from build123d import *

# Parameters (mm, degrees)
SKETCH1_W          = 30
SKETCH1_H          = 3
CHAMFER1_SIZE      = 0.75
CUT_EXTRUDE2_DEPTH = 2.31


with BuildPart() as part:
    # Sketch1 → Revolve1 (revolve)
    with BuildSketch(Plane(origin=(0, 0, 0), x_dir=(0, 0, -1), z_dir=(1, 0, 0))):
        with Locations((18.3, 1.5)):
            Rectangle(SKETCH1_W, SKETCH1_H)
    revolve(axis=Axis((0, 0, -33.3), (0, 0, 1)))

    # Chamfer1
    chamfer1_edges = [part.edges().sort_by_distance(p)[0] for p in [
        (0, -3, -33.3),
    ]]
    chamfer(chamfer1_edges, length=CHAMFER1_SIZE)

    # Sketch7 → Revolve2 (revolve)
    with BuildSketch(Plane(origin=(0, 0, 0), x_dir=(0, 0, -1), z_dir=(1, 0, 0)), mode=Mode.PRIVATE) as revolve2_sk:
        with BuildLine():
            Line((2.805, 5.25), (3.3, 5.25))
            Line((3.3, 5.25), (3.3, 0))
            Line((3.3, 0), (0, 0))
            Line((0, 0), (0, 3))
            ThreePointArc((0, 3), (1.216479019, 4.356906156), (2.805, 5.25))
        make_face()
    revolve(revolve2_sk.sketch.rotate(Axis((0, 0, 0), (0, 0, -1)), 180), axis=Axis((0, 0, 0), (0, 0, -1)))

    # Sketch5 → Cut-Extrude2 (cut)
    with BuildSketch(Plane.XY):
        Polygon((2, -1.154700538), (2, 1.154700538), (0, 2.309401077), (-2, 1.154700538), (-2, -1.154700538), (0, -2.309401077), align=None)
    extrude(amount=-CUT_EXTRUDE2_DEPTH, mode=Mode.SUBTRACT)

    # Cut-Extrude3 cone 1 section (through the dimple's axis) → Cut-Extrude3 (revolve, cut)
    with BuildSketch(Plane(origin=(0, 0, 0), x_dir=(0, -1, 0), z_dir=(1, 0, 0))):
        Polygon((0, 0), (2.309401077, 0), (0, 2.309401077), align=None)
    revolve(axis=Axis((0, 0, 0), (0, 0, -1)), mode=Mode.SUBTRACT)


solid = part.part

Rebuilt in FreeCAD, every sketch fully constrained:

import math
import FreeCAD as App
import Part
import Sketcher
Q = App.Units.Quantity


def edges_at(feature, points):
    """Names of the edges that pass closest to the given points."""
    edges = feature.Shape.Edges
    near = lambda p: min(range(len(edges)), key=lambda i: edges[i].distToShape(Part.Vertex(*p))[0])
    return sorted({f"Edge{near(p) + 1}" for p in points})

doc = App.newDocument("Part")
params = doc.addObject("Spreadsheet::Sheet", "Params")
for row, (alias, value) in enumerate([
    ("sketch1_width", "3 mm"),
    ("sketch1_height", "30 mm"),
    ("revolution_angle", "360 deg"),
    ("chamfer_size", "0.75 mm"),
    ("sketch2_width", "3 mm"),
    ("sketch2_height", "3.3 mm"),
    ("sketch2_width2", "5.25 mm"),
    ("revolution2_angle", "360 deg"),
    ("pocket1_length", "2.31 mm"),
    ("groove_angle", "360 deg"),
], start=1):
    params.set(f"A{row}", alias)
    params.set(f"B{row}", "=" + value)
    params.setAlias(f"B{row}", alias)

body = doc.addObject("PartDesign::Body", "Body")

# Sketch on YZ plane
sketch1 = body.newObject("Sketcher::SketchObject", "Sketch")
sketch1.AttachmentSupport = (doc.getObject("YZ_Plane"), [""])
sketch1.MapMode = "FlatFace"
sketch1.addGeometry([
    Part.LineSegment(App.Vector(3, -3.3, 0), App.Vector(0, -3.3, 0)),
    Part.LineSegment(App.Vector(0, -3.3, 0), App.Vector(0, -33.3, 0)),
    Part.LineSegment(App.Vector(0, -33.3, 0), App.Vector(3, -33.3, 0)),
    Part.LineSegment(App.Vector(3, -33.3, 0), App.Vector(3, -3.3, 0)),
], False)
sketch1.addConstraint([
    Sketcher.Constraint("Coincident", 0, 2, 1, 1),
    Sketcher.Constraint("Coincident", 1, 2, 2, 1),
    Sketcher.Constraint("Coincident", 2, 2, 3, 1),
    Sketcher.Constraint("Coincident", 3, 2, 0, 1),
    Sketcher.Constraint("Horizontal", 0),
    Sketcher.Constraint("Vertical", 1),
    Sketcher.Constraint("Horizontal", 2),
    Sketcher.Constraint("Vertical", 3),
    Sketcher.Constraint("PointOnObject", 0, 2, -2),
    Sketcher.Constraint("DistanceX", 0, 2, 0, 1, 3.0),
    Sketcher.Constraint("DistanceY", 1, 2, 1, 1, 30.0),
    Sketcher.Constraint("DistanceY", 0, 2, -1, 1, 3.3),
])
sketch1.setExpression("Constraints[9]", "Params.sketch1_width")
sketch1.setExpression("Constraints[10]", "Params.sketch1_height")
revolution = body.newObject("PartDesign::Revolution", "Revolution")
revolution.Profile = sketch1
revolution.ReferenceAxis = (sketch1, ["V_Axis"])
revolution.setExpression("Angle", "Params.revolution_angle")
doc.recompute()

chamfer = body.newObject("PartDesign::Chamfer", "Chamfer")
chamfer.Base = (revolution, edges_at(revolution, [(0, -3, -33.3)]))
chamfer.setExpression("Size", "Params.chamfer_size")

# Sketch on YZ plane
sketch2 = body.newObject("Sketcher::SketchObject", "Sketch001")
sketch2.AttachmentSupport = (doc.getObject("YZ_Plane"), [""])
sketch2.MapMode = "FlatFace"
sketch2.addGeometry([
    Part.LineSegment(App.Vector(5.25, -3.3, 0), App.Vector(5.25, -2.81, 0)),  # 0
    Part.ArcOfCircle(Part.Circle(App.Vector(0, -4.71, 0), App.Vector(0, 0, 1), 5.59), math.radians(20), math.radians(58)),  # 1
    Part.LineSegment(App.Vector(3, 0, 0), App.Vector(0, 0, 0)),  # 2
    Part.LineSegment(App.Vector(0, 0, 0), App.Vector(0, -3.3, 0)),  # 3
    Part.LineSegment(App.Vector(0, -3.3, 0), App.Vector(5.25, -3.3, 0)),  # 4
], False)
sketch2.addConstraint([
    Sketcher.Constraint("Coincident", 0, 2, 1, 1),
    Sketcher.Constraint("Coincident", 1, 2, 2, 1),
    Sketcher.Constraint("Coincident", 2, 2, 3, 1),
    Sketcher.Constraint("Coincident", 3, 2, 4, 1),
    Sketcher.Constraint("Coincident", 4, 2, 0, 1),
    Sketcher.Constraint("Vertical", 0),
    Sketcher.Constraint("Horizontal", 2),
    Sketcher.Constraint("Vertical", 3),
    Sketcher.Constraint("Horizontal", 4),
    Sketcher.Constraint("Coincident", 2, 2, -1, 1),
    Sketcher.Constraint("PointOnObject", 1, 3, -2),
    Sketcher.Constraint("DistanceX", 2, 2, 2, 1, 3.0),
    Sketcher.Constraint("DistanceY", 3, 2, 3, 1, 3.3),
    Sketcher.Constraint("DistanceX", 4, 1, 4, 2, 5.25),
    Sketcher.Constraint("DistanceY", 0, 1, 0, 2, 0.495),
])
sketch2.setExpression("Constraints[11]", "Params.sketch2_width")
sketch2.setExpression("Constraints[12]", "Params.sketch2_height")
sketch2.setExpression("Constraints[13]", "Params.sketch2_width2")
revolution2 = body.newObject("PartDesign::Revolution", "Revolution001")
revolution2.Profile = sketch2
revolution2.ReferenceAxis = (sketch2, ["V_Axis"])
revolution2.setExpression("Angle", "Params.revolution2_angle")

# Sketch on XY plane
sketch3 = body.newObject("Sketcher::SketchObject", "Sketch002")
sketch3.AttachmentSupport = (doc.getObject("XY_Plane"), [""])
sketch3.MapMode = "FlatFace"
sketch3.addGeometry([
    Part.LineSegment(App.Vector(2, -1.2, 0), App.Vector(2, 1.2, 0)),  # 0
    Part.LineSegment(App.Vector(2, 1.2, 0), App.Vector(0, 2.3, 0)),  # 1
    Part.LineSegment(App.Vector(0, 2.3, 0), App.Vector(-2, 1.2, 0)),  # 2
    Part.LineSegment(App.Vector(-2, 1.2, 0), App.Vector(-2, -1.2, 0)),  # 3
    Part.LineSegment(App.Vector(-2, -1.2, 0), App.Vector(0, -2.3, 0)),  # 4
    Part.LineSegment(App.Vector(0, -2.3, 0), App.Vector(2, -1.2, 0)),  # 5
], False)
sketch3.addConstraint([
    Sketcher.Constraint("Coincident", 0, 2, 1, 1),
    Sketcher.Constraint("Coincident", 1, 2, 2, 1),
    Sketcher.Constraint("Coincident", 2, 2, 3, 1),
    Sketcher.Constraint("Coincident", 3, 2, 4, 1),
    Sketcher.Constraint("Coincident", 4, 2, 5, 1),
    Sketcher.Constraint("Coincident", 5, 2, 0, 1),
    Sketcher.Constraint("Vertical", 0),
    Sketcher.Constraint("Vertical", 3),
    Sketcher.Constraint("Symmetric", 0, 2, 3, 2, -1, 1),
    Sketcher.Constraint("Symmetric", 1, 2, 4, 2, -1, 1),
    Sketcher.Constraint("PointOnObject", 1, 2, -2),
    Sketcher.Constraint("Parallel", 2, 5),
    Sketcher.Constraint("Horizontal", 0, 2, 2, 2),
    Sketcher.Constraint("Angle", 1, Q("150 deg")),
    Sketcher.Constraint("DistanceX", -1, 1, 0, 2, 2.0),
    Sketcher.Constraint("DistanceY", 0, 1, 0, 2, 2.309401),
])
pocket1 = body.newObject("PartDesign::Pocket", "Pocket")
pocket1.Profile = sketch3
pocket1.setExpression("Length", "Params.pocket1_length")

# Sketch on YZ plane
sketch4 = body.newObject("Sketcher::SketchObject", "Sketch003")
sketch4.AttachmentSupport = (doc.getObject("YZ_Plane"), [""])
sketch4.MapMode = "FlatFace"
sketch4.addGeometry([
    Part.LineSegment(App.Vector(0, 0, 0), App.Vector(-2.3, 0, 0)),
    Part.LineSegment(App.Vector(-2.3, 0, 0), App.Vector(0, -2.3, 0)),
    Part.LineSegment(App.Vector(0, -2.3, 0), App.Vector(0, 0, 0)),
], False)
sketch4.addConstraint([
    Sketcher.Constraint("Coincident", 0, 2, 1, 1),
    Sketcher.Constraint("Coincident", 1, 2, 2, 1),
    Sketcher.Constraint("Coincident", 2, 2, 0, 1),
    Sketcher.Constraint("Horizontal", 0),
    Sketcher.Constraint("Vertical", 2),
    Sketcher.Constraint("Coincident", 2, 2, -1, 1),
    Sketcher.Constraint("Equal", 0, 2),
    Sketcher.Constraint("DistanceX", 0, 2, 0, 1, 2.309401),
])
groove = body.newObject("PartDesign::Groove", "Groove")
groove.Profile = sketch4
groove.ReferenceAxis = (sketch4, ["V_Axis"])
groove.setExpression("Angle", "Params.groove_angle")

doc.recompute()
